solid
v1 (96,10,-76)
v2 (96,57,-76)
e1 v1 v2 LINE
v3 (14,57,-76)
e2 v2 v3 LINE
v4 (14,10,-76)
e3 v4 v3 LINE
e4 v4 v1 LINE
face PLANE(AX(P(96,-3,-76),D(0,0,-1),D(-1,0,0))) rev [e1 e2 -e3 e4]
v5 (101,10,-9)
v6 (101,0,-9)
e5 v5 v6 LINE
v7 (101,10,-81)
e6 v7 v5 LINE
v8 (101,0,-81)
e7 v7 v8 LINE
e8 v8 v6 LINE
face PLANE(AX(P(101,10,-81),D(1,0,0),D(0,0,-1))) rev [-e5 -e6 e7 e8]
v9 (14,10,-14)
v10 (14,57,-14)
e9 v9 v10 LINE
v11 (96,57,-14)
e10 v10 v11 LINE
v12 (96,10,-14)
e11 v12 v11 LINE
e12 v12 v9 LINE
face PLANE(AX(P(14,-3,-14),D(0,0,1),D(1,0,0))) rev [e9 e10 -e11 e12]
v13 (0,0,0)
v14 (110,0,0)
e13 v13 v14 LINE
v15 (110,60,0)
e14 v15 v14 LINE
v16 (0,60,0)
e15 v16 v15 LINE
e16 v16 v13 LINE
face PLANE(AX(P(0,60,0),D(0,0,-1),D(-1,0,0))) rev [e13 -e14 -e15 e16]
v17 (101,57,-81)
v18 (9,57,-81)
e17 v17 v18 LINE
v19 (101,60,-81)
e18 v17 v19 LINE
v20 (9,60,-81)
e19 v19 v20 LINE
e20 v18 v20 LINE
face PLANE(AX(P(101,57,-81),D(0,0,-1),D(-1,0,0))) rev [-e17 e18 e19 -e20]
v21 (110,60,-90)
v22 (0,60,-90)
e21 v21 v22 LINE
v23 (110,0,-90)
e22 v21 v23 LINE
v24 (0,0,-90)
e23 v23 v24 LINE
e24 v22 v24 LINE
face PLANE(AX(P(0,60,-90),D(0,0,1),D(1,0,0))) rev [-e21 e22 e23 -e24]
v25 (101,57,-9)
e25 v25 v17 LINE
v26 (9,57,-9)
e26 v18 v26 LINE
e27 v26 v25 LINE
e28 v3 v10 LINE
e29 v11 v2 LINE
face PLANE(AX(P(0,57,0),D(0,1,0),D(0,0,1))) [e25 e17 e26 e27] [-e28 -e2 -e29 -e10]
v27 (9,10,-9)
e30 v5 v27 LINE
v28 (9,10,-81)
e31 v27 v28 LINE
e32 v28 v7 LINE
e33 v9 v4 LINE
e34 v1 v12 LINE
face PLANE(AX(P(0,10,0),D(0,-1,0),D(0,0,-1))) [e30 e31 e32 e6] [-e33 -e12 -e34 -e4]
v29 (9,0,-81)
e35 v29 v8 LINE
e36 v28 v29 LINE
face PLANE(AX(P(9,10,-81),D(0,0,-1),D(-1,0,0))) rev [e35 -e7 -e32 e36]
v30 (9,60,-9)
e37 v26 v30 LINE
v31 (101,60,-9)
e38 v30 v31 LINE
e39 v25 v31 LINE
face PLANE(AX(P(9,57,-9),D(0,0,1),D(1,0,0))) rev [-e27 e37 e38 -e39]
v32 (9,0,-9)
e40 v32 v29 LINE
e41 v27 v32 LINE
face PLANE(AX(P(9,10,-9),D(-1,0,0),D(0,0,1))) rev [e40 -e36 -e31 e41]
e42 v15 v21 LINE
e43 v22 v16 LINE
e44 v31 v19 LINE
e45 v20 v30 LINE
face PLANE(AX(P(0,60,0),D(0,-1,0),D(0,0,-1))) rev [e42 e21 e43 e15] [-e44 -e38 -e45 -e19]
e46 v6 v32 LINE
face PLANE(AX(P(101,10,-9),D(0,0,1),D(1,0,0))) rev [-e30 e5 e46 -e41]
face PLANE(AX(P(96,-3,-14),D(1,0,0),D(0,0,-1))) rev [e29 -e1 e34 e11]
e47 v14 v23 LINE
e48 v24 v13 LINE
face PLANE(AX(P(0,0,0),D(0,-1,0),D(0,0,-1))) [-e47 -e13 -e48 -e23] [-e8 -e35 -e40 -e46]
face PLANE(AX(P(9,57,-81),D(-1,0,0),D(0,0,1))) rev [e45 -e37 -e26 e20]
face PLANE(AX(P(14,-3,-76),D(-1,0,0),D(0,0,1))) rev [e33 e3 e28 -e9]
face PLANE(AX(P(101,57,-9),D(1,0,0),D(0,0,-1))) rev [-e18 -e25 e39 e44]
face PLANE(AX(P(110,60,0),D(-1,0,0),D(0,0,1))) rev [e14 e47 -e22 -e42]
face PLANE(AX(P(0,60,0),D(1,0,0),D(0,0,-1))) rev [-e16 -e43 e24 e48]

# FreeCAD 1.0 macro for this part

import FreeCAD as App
import Part
import Sketcher
Q = App.Units.Quantity


def add_polygon(sketch, points):
    """Adds a closed chain of lines whose ends are joined by coincident constraints."""
    first, n = sketch.GeometryCount, len(points)
    for a, b in zip(points, points[1:] + points[:1]):
        sketch.addGeometry(Part.LineSegment(App.Vector(*a, 0), App.Vector(*b, 0)), False)
    for i in range(n):
        sketch.addConstraint(Sketcher.Constraint("Coincident", first + i, 2, first + (i + 1) % n, 1))

doc = App.newDocument("Part")
body = doc.addObject("PartDesign::Body", "Body")

# Sketch on XZ plane
sketch1 = body.newObject("Sketcher::SketchObject", "Sketch")
sketch1.AttachmentSupport = (doc.getObject("XZ_Plane"), [""])
sketch1.MapMode = "FlatFace"
add_polygon(sketch1, [(0, -90), (0, 0), (110, 0), (110, -90)])  # lines 0-3
sketch1.addConstraint([
    Sketcher.Constraint("Vertical", 0),
    Sketcher.Constraint("Horizontal", 1),
    Sketcher.Constraint("Vertical", 2),
    Sketcher.Constraint("Horizontal", 3),
    Sketcher.Constraint("Coincident", 0, 2, -1, 1),
    Sketcher.Constraint("DistanceX", 1, 1, 1, 2, Q("110 mm")),
    Sketcher.Constraint("DistanceY", 0, 1, 0, 2, Q("90 mm")),
])
pad1 = body.newObject("PartDesign::Pad", "Pad")
pad1.Profile = sketch1
pad1.Length = 60
pad1.Reversed = True

# Sketch on XZ plane
sketch2 = body.newObject("Sketcher::SketchObject", "Sketch001")
sketch2.AttachmentSupport = (doc.getObject("XZ_Plane"), [""])
sketch2.MapMode = "FlatFace"
sketch2.AttachmentOffset = App.Placement(App.Vector(0, 0, -60), App.Rotation())
add_polygon(sketch2, [(9, -81), (9, -9), (101, -9), (101, -81)])  # lines 0-3
sketch2.addConstraint([
    Sketcher.Constraint("Vertical", 0),
    Sketcher.Constraint("Horizontal", 1),
    Sketcher.Constraint("Vertical", 2),
    Sketcher.Constraint("Horizontal", 3),
    Sketcher.Constraint("DistanceX", 1, 1, 1, 2, Q("92 mm")),
    Sketcher.Constraint("DistanceY", 0, 1, 0, 2, Q("72 mm")),
    Sketcher.Constraint("DistanceX", -1, 1, 0, 2, Q("9 mm")),
    Sketcher.Constraint("DistanceY", 0, 2, -1, 1, Q("9 mm")),
])
pocket1 = body.newObject("PartDesign::Pocket", "Pocket")
pocket1.Profile = sketch2
pocket1.Length = 3
pocket1.Reversed = True

# Sketch on XZ plane
sketch3 = body.newObject("Sketcher::SketchObject", "Sketch002")
sketch3.AttachmentSupport = (doc.getObject("XZ_Plane"), [""])
sketch3.MapMode = "FlatFace"
add_polygon(sketch3, [(9, -9), (9, -81), (101, -81), (101, -9)])  # lines 0-3
sketch3.addConstraint([
    Sketcher.Constraint("Vertical", 0),
    Sketcher.Constraint("Horizontal", 1),
    Sketcher.Constraint("Vertical", 2),
    Sketcher.Constraint("Horizontal", 3),
    Sketcher.Constraint("DistanceX", 1, 1, 1, 2, Q("92 mm")),
    Sketcher.Constraint("DistanceY", 0, 2, 0, 1, Q("72 mm")),
    Sketcher.Constraint("DistanceX", -1, 1, 0, 2, Q("9 mm")),
    Sketcher.Constraint("DistanceY", 0, 2, -1, 1, Q("81 mm")),
])
pocket2 = body.newObject("PartDesign::Pocket", "Pocket001")
pocket2.Profile = sketch3
pocket2.Length = 10

# Sketch on XZ plane
sketch4 = body.newObject("Sketcher::SketchObject", "Sketch003")
sketch4.AttachmentSupport = (doc.getObject("XZ_Plane"), [""])
sketch4.MapMode = "FlatFace"
sketch4.AttachmentOffset = App.Placement(App.Vector(0, 0, -57), App.Rotation())
add_polygon(sketch4, [(14, -76), (14, -14), (96, -14), (96, -76)])  # lines 0-3
sketch4.addConstraint([
    Sketcher.Constraint("Vertical", 0),
    Sketcher.Constraint("Horizontal", 1),
    Sketcher.Constraint("Vertical", 2),
    Sketcher.Constraint("Horizontal", 3),
    Sketcher.Constraint("DistanceX", 1, 1, 1, 2, Q("82 mm")),
    Sketcher.Constraint("DistanceY", 0, 1, 0, 2, Q("62 mm")),
    Sketcher.Constraint("DistanceX", -1, 1, 0, 2, Q("14 mm")),
    Sketcher.Constraint("DistanceY", 0, 2, -1, 1, Q("14 mm")),
])
pocket3 = body.newObject("PartDesign::Pocket", "Pocket002")
pocket3.Profile = sketch4
pocket3.Length = 60
pocket3.Reversed = True

doc.recompute()
